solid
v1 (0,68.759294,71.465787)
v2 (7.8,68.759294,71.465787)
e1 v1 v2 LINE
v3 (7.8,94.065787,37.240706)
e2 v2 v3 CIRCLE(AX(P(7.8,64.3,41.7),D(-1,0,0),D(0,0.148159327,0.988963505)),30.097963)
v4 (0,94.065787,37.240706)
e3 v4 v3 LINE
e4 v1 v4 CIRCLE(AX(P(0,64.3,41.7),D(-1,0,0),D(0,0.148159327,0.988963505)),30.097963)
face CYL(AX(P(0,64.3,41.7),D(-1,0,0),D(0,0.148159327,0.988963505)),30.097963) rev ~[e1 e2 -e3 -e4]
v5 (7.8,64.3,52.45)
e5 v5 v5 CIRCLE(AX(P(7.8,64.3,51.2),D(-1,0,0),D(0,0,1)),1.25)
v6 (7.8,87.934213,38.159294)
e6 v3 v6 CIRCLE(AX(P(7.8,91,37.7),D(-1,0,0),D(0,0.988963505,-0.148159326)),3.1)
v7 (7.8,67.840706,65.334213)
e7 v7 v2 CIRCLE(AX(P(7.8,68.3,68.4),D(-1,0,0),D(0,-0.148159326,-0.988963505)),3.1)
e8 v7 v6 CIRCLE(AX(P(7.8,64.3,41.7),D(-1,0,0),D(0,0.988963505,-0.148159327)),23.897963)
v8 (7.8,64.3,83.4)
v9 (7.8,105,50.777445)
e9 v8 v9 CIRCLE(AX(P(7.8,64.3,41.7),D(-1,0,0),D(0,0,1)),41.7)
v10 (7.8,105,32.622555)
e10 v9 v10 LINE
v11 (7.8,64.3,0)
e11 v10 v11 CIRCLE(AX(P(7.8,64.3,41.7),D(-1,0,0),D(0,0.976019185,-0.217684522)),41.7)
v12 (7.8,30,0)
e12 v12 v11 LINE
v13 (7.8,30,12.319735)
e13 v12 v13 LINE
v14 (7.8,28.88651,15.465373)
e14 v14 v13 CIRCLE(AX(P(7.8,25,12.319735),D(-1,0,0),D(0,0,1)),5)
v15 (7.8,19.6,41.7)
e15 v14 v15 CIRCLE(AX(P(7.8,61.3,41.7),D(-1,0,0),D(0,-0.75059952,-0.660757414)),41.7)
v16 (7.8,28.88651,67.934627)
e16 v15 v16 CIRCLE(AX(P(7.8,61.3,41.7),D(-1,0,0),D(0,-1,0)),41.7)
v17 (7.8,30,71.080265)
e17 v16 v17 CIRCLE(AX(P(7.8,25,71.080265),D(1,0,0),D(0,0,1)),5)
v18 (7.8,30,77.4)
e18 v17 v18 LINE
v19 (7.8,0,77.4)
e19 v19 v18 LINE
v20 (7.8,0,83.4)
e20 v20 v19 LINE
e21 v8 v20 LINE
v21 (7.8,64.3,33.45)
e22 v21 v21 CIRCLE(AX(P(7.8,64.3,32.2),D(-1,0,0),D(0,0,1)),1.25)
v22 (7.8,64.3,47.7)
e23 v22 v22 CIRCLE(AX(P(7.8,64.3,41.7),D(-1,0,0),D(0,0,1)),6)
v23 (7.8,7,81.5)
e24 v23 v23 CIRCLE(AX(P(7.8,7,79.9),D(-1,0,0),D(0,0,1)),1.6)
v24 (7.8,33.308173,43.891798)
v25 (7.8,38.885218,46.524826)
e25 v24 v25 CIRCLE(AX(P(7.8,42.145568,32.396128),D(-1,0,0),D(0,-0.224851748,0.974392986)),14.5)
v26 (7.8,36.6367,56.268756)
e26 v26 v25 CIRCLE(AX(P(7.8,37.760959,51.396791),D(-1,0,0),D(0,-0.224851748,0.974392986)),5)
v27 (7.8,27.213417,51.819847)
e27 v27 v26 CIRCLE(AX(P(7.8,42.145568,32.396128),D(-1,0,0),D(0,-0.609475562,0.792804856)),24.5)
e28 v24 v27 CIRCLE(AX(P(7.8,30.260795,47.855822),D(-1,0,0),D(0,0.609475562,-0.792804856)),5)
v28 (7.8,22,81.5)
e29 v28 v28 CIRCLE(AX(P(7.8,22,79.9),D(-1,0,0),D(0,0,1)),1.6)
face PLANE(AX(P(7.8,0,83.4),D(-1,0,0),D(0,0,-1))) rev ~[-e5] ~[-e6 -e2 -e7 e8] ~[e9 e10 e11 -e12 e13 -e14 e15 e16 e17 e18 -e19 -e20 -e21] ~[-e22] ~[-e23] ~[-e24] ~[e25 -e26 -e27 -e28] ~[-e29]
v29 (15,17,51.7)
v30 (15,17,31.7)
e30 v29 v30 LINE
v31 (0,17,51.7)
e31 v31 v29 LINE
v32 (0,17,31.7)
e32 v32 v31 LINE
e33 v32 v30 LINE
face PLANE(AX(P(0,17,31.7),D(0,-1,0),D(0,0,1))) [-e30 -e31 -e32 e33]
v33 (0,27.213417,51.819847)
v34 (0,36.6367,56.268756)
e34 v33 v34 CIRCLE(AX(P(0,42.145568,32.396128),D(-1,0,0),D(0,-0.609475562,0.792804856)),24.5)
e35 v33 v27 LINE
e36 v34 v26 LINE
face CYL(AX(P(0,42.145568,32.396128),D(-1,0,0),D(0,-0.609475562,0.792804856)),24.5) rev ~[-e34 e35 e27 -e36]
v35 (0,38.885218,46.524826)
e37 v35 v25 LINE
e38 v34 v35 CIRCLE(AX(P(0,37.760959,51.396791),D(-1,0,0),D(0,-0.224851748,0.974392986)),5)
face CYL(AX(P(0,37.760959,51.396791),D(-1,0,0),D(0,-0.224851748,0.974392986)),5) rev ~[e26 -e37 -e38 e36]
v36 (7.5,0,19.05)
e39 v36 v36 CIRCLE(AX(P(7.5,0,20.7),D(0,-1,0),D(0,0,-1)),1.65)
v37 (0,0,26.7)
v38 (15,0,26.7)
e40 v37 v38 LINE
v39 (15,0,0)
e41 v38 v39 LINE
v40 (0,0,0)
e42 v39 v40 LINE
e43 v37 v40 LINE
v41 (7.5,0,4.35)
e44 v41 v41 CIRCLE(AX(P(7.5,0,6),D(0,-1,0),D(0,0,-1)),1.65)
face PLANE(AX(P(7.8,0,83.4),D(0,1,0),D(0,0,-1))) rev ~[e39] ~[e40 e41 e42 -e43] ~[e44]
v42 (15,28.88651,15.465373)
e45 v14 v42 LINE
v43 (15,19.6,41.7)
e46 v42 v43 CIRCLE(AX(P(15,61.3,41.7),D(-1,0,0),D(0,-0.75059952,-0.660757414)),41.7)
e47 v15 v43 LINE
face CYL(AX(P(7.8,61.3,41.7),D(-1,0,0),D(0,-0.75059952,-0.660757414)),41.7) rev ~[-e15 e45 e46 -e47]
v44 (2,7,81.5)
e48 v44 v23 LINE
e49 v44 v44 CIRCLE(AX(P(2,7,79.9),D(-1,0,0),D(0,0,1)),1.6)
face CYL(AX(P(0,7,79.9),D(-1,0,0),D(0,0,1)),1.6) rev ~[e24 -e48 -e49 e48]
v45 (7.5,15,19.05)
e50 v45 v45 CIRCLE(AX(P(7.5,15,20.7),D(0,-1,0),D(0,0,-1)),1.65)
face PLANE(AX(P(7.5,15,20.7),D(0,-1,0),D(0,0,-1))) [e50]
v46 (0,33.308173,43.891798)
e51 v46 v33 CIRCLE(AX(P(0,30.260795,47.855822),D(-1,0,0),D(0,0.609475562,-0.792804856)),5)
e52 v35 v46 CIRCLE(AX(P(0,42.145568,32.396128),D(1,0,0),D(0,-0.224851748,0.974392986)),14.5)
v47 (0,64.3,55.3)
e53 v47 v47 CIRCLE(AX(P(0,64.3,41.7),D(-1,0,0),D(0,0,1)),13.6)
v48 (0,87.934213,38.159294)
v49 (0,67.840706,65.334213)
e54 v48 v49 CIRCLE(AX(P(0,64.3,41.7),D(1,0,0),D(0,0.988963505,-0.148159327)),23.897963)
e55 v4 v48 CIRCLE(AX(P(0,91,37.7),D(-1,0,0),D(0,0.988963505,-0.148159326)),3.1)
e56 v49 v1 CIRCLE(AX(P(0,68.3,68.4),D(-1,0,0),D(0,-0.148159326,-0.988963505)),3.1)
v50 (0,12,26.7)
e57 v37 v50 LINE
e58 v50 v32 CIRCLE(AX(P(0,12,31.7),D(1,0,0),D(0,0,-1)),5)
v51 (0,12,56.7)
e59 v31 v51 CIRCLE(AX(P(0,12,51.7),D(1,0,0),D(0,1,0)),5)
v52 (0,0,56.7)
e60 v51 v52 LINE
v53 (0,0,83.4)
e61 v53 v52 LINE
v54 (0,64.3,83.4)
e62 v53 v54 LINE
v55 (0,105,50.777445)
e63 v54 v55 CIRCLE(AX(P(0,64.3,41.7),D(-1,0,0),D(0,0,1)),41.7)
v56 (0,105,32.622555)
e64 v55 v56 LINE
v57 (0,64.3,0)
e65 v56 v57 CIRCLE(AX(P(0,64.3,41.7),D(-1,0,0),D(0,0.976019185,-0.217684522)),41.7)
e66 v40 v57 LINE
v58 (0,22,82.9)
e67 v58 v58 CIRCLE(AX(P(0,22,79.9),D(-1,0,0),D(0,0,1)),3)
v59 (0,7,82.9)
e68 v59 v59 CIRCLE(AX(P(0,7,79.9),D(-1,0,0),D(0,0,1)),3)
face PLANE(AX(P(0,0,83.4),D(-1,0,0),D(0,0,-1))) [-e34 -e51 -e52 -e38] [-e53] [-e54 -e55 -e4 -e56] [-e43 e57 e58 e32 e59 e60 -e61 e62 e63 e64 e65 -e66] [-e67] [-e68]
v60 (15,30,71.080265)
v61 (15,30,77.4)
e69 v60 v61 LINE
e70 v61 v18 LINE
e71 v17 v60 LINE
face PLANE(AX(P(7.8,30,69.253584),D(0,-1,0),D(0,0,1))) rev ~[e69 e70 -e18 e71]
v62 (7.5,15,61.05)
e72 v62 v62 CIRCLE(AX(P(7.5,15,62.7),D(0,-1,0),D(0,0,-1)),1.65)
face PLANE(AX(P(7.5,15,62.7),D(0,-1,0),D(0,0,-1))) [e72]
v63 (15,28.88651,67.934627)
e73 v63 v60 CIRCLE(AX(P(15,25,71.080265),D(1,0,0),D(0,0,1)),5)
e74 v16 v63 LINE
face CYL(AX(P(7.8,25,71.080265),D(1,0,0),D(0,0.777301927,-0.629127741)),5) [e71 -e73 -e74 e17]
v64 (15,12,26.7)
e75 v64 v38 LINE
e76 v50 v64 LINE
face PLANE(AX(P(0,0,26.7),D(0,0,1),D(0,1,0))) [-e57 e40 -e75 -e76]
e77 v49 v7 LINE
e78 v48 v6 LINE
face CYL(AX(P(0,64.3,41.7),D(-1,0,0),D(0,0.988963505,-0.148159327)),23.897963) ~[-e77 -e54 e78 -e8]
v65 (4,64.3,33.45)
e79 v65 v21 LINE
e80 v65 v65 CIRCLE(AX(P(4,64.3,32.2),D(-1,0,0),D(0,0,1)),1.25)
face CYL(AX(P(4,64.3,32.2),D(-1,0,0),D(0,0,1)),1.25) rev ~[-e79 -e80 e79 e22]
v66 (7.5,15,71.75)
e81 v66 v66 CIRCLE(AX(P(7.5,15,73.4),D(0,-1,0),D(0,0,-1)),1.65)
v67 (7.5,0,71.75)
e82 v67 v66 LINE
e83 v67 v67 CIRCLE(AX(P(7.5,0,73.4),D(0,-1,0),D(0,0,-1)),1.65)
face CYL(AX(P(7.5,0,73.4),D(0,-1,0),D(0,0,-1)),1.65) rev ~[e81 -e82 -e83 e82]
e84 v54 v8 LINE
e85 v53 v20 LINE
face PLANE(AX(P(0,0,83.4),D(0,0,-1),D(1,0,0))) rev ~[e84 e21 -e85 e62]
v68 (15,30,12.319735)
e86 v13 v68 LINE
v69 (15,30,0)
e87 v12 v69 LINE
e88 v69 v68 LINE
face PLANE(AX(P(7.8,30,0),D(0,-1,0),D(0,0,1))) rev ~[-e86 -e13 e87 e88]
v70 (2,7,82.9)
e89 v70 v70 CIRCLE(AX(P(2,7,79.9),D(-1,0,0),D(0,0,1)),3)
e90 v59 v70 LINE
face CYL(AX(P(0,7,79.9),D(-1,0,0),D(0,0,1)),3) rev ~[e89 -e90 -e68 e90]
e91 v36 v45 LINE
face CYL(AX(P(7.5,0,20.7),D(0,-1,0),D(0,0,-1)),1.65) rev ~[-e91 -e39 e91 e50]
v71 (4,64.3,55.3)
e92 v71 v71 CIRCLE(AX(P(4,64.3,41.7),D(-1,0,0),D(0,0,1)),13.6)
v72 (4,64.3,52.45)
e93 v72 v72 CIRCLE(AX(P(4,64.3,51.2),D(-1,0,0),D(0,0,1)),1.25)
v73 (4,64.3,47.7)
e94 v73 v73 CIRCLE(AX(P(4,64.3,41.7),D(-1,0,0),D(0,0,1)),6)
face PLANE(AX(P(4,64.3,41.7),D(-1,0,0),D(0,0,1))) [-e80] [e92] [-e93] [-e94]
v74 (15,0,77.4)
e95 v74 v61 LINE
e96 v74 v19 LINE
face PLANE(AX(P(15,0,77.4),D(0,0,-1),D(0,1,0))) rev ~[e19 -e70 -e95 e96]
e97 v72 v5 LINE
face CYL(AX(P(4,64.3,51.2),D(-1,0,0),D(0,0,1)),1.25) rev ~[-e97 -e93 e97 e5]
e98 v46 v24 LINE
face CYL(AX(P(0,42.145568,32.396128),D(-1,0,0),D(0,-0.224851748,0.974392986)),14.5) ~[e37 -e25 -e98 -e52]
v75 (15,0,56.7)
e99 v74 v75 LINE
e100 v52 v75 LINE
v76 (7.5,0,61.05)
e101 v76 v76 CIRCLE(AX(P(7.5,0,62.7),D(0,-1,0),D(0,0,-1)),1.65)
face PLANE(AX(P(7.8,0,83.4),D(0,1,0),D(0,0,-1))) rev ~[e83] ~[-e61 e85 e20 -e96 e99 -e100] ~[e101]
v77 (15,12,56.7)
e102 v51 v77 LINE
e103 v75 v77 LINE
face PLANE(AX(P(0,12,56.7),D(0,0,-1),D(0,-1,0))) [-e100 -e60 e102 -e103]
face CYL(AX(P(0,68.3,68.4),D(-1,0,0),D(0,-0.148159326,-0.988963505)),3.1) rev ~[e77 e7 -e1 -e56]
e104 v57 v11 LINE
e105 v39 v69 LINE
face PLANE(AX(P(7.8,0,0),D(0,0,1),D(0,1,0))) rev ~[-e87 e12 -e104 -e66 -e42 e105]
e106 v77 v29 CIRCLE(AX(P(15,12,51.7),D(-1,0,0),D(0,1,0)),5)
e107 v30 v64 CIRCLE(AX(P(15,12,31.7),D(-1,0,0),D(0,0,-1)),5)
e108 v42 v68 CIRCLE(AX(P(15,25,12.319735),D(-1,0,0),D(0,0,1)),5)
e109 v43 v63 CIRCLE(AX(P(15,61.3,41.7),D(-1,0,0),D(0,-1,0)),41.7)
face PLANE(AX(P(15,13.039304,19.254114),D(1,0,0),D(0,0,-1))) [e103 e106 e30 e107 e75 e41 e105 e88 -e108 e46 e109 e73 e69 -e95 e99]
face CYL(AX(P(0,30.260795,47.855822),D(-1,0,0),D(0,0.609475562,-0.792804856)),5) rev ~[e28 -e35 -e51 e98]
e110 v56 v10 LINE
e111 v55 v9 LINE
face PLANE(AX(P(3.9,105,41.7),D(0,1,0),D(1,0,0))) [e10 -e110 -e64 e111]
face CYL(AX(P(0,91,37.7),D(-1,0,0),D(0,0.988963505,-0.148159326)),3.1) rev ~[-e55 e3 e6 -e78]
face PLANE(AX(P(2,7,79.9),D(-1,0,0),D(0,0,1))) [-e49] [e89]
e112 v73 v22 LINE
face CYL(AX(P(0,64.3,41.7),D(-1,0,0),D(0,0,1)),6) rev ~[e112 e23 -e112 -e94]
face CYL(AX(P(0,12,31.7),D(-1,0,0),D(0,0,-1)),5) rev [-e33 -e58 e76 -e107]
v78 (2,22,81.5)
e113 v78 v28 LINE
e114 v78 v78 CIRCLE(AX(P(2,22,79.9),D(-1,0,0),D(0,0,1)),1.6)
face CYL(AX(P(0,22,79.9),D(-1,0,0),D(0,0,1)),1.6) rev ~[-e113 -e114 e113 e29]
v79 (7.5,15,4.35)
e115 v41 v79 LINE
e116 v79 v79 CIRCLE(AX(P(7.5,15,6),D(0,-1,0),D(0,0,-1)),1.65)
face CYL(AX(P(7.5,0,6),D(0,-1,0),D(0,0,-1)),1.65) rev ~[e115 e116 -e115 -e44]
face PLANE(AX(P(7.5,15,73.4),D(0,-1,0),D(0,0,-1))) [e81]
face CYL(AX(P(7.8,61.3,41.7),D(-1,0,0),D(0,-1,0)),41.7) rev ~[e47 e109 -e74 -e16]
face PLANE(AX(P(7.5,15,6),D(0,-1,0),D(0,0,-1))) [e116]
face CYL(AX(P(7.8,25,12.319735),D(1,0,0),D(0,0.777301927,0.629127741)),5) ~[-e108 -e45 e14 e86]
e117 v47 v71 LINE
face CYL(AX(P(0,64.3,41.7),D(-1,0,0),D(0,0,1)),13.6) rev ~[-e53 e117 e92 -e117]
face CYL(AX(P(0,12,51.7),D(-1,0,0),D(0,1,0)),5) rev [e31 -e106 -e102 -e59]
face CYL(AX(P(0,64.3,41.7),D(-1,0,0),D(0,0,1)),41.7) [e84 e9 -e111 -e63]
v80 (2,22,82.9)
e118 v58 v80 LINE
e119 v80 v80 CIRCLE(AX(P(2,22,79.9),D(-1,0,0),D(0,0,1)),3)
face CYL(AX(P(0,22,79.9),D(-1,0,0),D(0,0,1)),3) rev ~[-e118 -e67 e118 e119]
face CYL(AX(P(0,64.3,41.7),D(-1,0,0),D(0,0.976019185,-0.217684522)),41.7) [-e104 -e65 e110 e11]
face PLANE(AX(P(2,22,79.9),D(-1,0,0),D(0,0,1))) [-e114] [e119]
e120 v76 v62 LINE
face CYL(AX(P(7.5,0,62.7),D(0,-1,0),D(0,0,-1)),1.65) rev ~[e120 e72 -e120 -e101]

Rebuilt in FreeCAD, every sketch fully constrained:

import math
import FreeCAD as App
import Part
import Sketcher
from FreeCAD import Vector


def edges_at(feature, points):
    """Names of the edges that pass closest to the given points."""
    edges = feature.Shape.Edges
    near = lambda p: min(range(len(edges)), key=lambda i: edges[i].distToShape(Part.Vertex(*p))[0])
    return sorted({f"Edge{near(p) + 1}" for p in points})

doc = App.newDocument("Part")
params = doc.addObject("Spreadsheet::Sheet", "Params")
for row, (alias, value) in enumerate([
    ("sketch1_width", "7.8 mm"),
    ("sketch1_height", "83.4 mm"),
    ("pad1_length", "105 mm"),
    ("sketch2_radius", "41.7 mm"),
    ("sketch2_width", "40.7 mm"),
    ("sketch3_diameter", "12 mm"),
    ("sketch4_diameter", "27.2 mm"),
    ("pocket3_length", "4 mm"),
    ("sketch5_diameter", "2.5 mm"),
    ("pocket4_length", "4 mm"),
    ("sketch6_radius", "41.7 mm"),
    ("sketch6_width", "30 mm"),
    ("sketch6_height", "83.4 mm"),
    ("pad2_length", "7.2 mm"),
    ("sketch7_width", "30 mm"),
    ("sketch7_height", "6 mm"),
    ("pocket5_length", "7.2 mm"),
    ("sketch8_radius", "5 mm"),
    ("sketch8_width", "12 mm"),
    ("sketch8_height", "20 mm"),
    ("sketch9_diameter", "3.3 mm"),
    ("pocket7_length", "15 mm"),
    ("sketch10_radius", "3.1 mm"),
    ("fillet_radius", "5 mm"),
    ("sketch11_radius", "5 mm"),
    ("sketch11_radius2", "24.5 mm"),
    ("sketch12_diameter", "3.2 mm"),
    ("sketch13_diameter", "6 mm"),
    ("pocket11_length", "2 mm"),
], start=1):
    params.set(f"A{row}", alias)
    params.set(f"B{row}", "=" + value)
    params.setAlias(f"B{row}", alias)

body = doc.addObject("PartDesign::Body", "Body")

# Sketch on XZ plane
sketch1 = doc.addObject("Sketcher::SketchObject", "Sketch")
body.addObject(sketch1)
sketch1.AttachmentSupport = (doc.XZ_Plane, [""])
sketch1.MapMode = "FlatFace"
sketch1.addGeometry(Part.LineSegment(Vector(0, 0, 0), Vector(0, 83.4, 0)), False)
sketch1.addGeometry(Part.LineSegment(Vector(0, 83.4, 0), Vector(7.8, 83.4, 0)), False)
sketch1.addGeometry(Part.LineSegment(Vector(7.8, 83.4, 0), Vector(7.8, 0, 0)), False)
sketch1.addGeometry(Part.LineSegment(Vector(7.8, 0, 0), Vector(0, 0, 0)), False)
sketch1.addConstraint(Sketcher.Constraint("Coincident", 0, 2, 1, 1))
sketch1.addConstraint(Sketcher.Constraint("Coincident", 1, 2, 2, 1))
sketch1.addConstraint(Sketcher.Constraint("Coincident", 2, 2, 3, 1))
sketch1.addConstraint(Sketcher.Constraint("Coincident", 3, 2, 0, 1))
sketch1.addConstraint(Sketcher.Constraint("Vertical", 0))
sketch1.addConstraint(Sketcher.Constraint("Horizontal", 1))
sketch1.addConstraint(Sketcher.Constraint("Vertical", 2))
sketch1.addConstraint(Sketcher.Constraint("Horizontal", 3))
sketch1.addConstraint(Sketcher.Constraint("Coincident", 3, 2, -1, 1))
sketch1.addConstraint(Sketcher.Constraint("DistanceX", 1, 1, 1, 2, 7.8))
sketch1.addConstraint(Sketcher.Constraint("DistanceY", 0, 1, 0, 2, 83.4))
sketch1.setExpression("Constraints[9]", "Params.sketch1_width")
sketch1.setExpression("Constraints[10]", "Params.sketch1_height")
pad1 = doc.addObject("PartDesign::Pad", "Pad")
body.addObject(pad1)
pad1.Profile = sketch1
pad1.setExpression("Length", "Params.pad1_length")
pad1.Reversed = True

# Sketch on YZ plane
sketch2 = doc.addObject("Sketcher::SketchObject", "Sketch001")
body.addObject(sketch2)
sketch2.AttachmentSupport = (doc.YZ_Plane, [""])
sketch2.MapMode = "FlatFace"
sketch2.addGeometry(Part.LineSegment(Vector(105, 0, 0), Vector(64.3, 0, 0)), False)
sketch2.addGeometry(Part.ArcOfCircle(Part.Circle(Vector(64.3, 41.7, 0), Vector(0, 0, 1), 41.7), math.radians(-90), math.radians(-12.57307)), False)
sketch2.addGeometry(Part.LineSegment(Vector(105, 32.622555, 0), Vector(105, 0, 0)), False)
sketch2.addGeometry(Part.LineSegment(Vector(64.3, 83.4, 0), Vector(105, 83.4, 0)), False)
sketch2.addGeometry(Part.LineSegment(Vector(105, 83.4, 0), Vector(105, 50.777445, 0)), False)
sketch2.addGeometry(Part.ArcOfCircle(Part.Circle(Vector(64.3, 41.7, 0), Vector(0, 0, 1), 41.7), math.radians(12.57307), math.radians(90)), False)
sketch2.addConstraint(Sketcher.Constraint("Tangent", 0, 2, 1, 1))
sketch2.addConstraint(Sketcher.Constraint("Coincident", 1, 2, 2, 1))
sketch2.addConstraint(Sketcher.Constraint("Coincident", 2, 2, 0, 1))
sketch2.addConstraint(Sketcher.Constraint("Coincident", 3, 2, 4, 1))
sketch2.addConstraint(Sketcher.Constraint("Coincident", 4, 2, 5, 1))
sketch2.addConstraint(Sketcher.Constraint("Tangent", 5, 2, 3, 1))
sketch2.addConstraint(Sketcher.Constraint("Horizontal", 0))
sketch2.addConstraint(Sketcher.Constraint("Vertical", 2))
sketch2.addConstraint(Sketcher.Constraint("Horizontal", 3))
sketch2.addConstraint(Sketcher.Constraint("Vertical", 4))
sketch2.addConstraint(Sketcher.Constraint("Coincident", 5, 3, 1, 3))
sketch2.addConstraint(Sketcher.Constraint("Equal", 1, 5))
sketch2.addConstraint(Sketcher.Constraint("PointOnObject", 0, 2, -1))
sketch2.addConstraint(Sketcher.Constraint("Vertical", 2, 2, 3, 2))
sketch2.addConstraint(Sketcher.Constraint("Radius", 1, 41.7))
sketch2.addConstraint(Sketcher.Constraint("DistanceX", 0, 2, 0, 1, 40.7))
sketch2.addConstraint(Sketcher.Constraint("DistanceX", -1, 1, 1, 2, 105.0))
sketch2.setExpression("Constraints[14]", "Params.sketch2_radius")
sketch2.setExpression("Constraints[15]", "Params.sketch2_width")
pocket1 = doc.addObject("PartDesign::Pocket", "Pocket")
body.addObject(pocket1)
pocket1.Profile = sketch2
pocket1.Type = "ThroughAll"
pocket1.Reversed = True

# Sketch on YZ plane
sketch3 = doc.addObject("Sketcher::SketchObject", "Sketch002")
body.addObject(sketch3)
sketch3.AttachmentSupport = (doc.YZ_Plane, [""])
sketch3.MapMode = "FlatFace"
sketch3.addGeometry(Part.Circle(Vector(64.3, 41.7, 0), Vector(0, 0, 1), 6), False)
sketch3.addConstraint(Sketcher.Constraint("Diameter", 0, 12.0))
sketch3.addConstraint(Sketcher.Constraint("DistanceX", -1, 1, 0, 3, 64.3))
sketch3.addConstraint(Sketcher.Constraint("DistanceY", -1, 1, 0, 3, 41.7))
sketch3.setExpression("Constraints[0]", "Params.sketch3_diameter")
pocket2 = doc.addObject("PartDesign::Pocket", "Pocket001")
body.addObject(pocket2)
pocket2.Profile = sketch3
pocket2.Type = "ThroughAll"
pocket2.Reversed = True

# Sketch on YZ plane
sketch4 = doc.addObject("Sketcher::SketchObject", "Sketch003")
body.addObject(sketch4)
sketch4.AttachmentSupport = (doc.YZ_Plane, [""])
sketch4.MapMode = "FlatFace"
sketch4.addGeometry(Part.Circle(Vector(64.3, 41.7, 0), Vector(0, 0, 1), 13.6), False)
sketch4.addConstraint(Sketcher.Constraint("Diameter", 0, 27.2))
sketch4.addConstraint(Sketcher.Constraint("DistanceX", -1, 1, 0, 3, 64.3))
sketch4.addConstraint(Sketcher.Constraint("DistanceY", -1, 1, 0, 3, 41.7))
sketch4.setExpression("Constraints[0]", "Params.sketch4_diameter")
pocket3 = doc.addObject("PartDesign::Pocket", "Pocket002")
body.addObject(pocket3)
pocket3.Profile = sketch4
pocket3.setExpression("Length", "Params.pocket3_length")
pocket3.Reversed = True

# Sketch on YZ plane
sketch5 = doc.addObject("Sketcher::SketchObject", "Sketch004")
body.addObject(sketch5)
sketch5.AttachmentSupport = (doc.YZ_Plane, [""])
sketch5.MapMode = "FlatFace"
sketch5.AttachmentOffset = App.Placement(Vector(0, 0, 4), App.Rotation())
sketch5.addGeometry(Part.Circle(Vector(64.3, 32.2, 0), Vector(0, 0, 1), 1.25), False)
sketch5.addGeometry(Part.Circle(Vector(64.3, 51.2, 0), Vector(0, 0, 1), 1.25), False)
sketch5.addConstraint(Sketcher.Constraint("Equal", 0, 1))
sketch5.addConstraint(Sketcher.Constraint("Vertical", 0, 3, 1, 3))
sketch5.addConstraint(Sketcher.Constraint("Diameter", 0, 2.5))
sketch5.addConstraint(Sketcher.Constraint("DistanceY", 0, 3, 1, 3, 19.0))
sketch5.addConstraint(Sketcher.Constraint("DistanceX", -1, 1, 0, 3, 64.3))
sketch5.addConstraint(Sketcher.Constraint("DistanceY", -1, 1, 0, 3, 32.2))
sketch5.setExpression("Constraints[2]", "Params.sketch5_diameter")
pocket4 = doc.addObject("PartDesign::Pocket", "Pocket003")
body.addObject(pocket4)
pocket4.Profile = sketch5
pocket4.setExpression("Length", "Params.pocket4_length")
pocket4.Reversed = True

# Sketch on YZ plane
sketch6 = doc.addObject("Sketcher::SketchObject", "Sketch005")
body.addObject(sketch6)
sketch6.AttachmentSupport = (doc.YZ_Plane, [""])
sketch6.MapMode = "FlatFace"
sketch6.AttachmentOffset = App.Placement(Vector(0, 0, 7.8), App.Rotation())
sketch6.addGeometry(Part.ArcOfCircle(Part.Circle(Vector(61.3, 41.7, 0), Vector(0, 0, 1), 41.7), math.radians(-180), math.radians(-138.642337)), False)
sketch6.addGeometry(Part.ArcOfCircle(Part.Circle(Vector(61.3, 41.7, 0), Vector(0, 0, 1), 41.7), math.radians(138.642337), math.radians(180)), False)
sketch6.addGeometry(Part.LineSegment(Vector(30, 69.253584, 0), Vector(30, 83.4, 0)), False)
sketch6.addGeometry(Part.LineSegment(Vector(30, 83.4, 0), Vector(0, 83.4, 0)), False)
sketch6.addGeometry(Part.LineSegment(Vector(0, 83.4, 0), Vector(0, 0, 0)), False)
sketch6.addGeometry(Part.LineSegment(Vector(0, 0, 0), Vector(30, 0, 0)), False)
sketch6.addGeometry(Part.LineSegment(Vector(30, 0, 0), Vector(30, 14.146416, 0)), False)
sketch6.addConstraint(Sketcher.Constraint("Tangent", 0, 1, 1, 2))
sketch6.addConstraint(Sketcher.Constraint("Coincident", 1, 1, 2, 1))
sketch6.addConstraint(Sketcher.Constraint("Coincident", 2, 2, 3, 1))
sketch6.addConstraint(Sketcher.Constraint("Coincident", 3, 2, 4, 1))
sketch6.addConstraint(Sketcher.Constraint("Coincident", 4, 2, 5, 1))
sketch6.addConstraint(Sketcher.Constraint("Coincident", 5, 2, 6, 1))
sketch6.addConstraint(Sketcher.Constraint("Coincident", 6, 2, 0, 2))
sketch6.addConstraint(Sketcher.Constraint("Vertical", 2))
sketch6.addConstraint(Sketcher.Constraint("Horizontal", 3))
sketch6.addConstraint(Sketcher.Constraint("Vertical", 4))
sketch6.addConstraint(Sketcher.Constraint("Horizontal", 5))
sketch6.addConstraint(Sketcher.Constraint("Vertical", 6))
sketch6.addConstraint(Sketcher.Constraint("Coincident", 4, 2, -1, 1))
sketch6.addConstraint(Sketcher.Constraint("Equal", 0, 1))
sketch6.addConstraint(Sketcher.Constraint("Horizontal", 1, 3, 0, 1))
sketch6.addConstraint(Sketcher.Constraint("Vertical", 2, 2, 5, 2))
sketch6.addConstraint(Sketcher.Constraint("Equal", 2, 6))
sketch6.addConstraint(Sketcher.Constraint("Radius", 0, 41.7))
sketch6.addConstraint(Sketcher.Constraint("DistanceX", 3, 2, 3, 1, 30.0))
sketch6.addConstraint(Sketcher.Constraint("DistanceY", 4, 2, 4, 1, 83.4))
sketch6.addConstraint(Sketcher.Constraint("DistanceX", -1, 1, 0, 3, 61.3))
sketch6.setExpression("Constraints[17]", "Params.sketch6_radius")
sketch6.setExpression("Constraints[18]", "Params.sketch6_width")
sketch6.setExpression("Constraints[19]", "Params.sketch6_height")
pad2 = doc.addObject("PartDesign::Pad", "Pad001")
body.addObject(pad2)
pad2.Profile = sketch6
pad2.setExpression("Length", "Params.pad2_length")

# Sketch on YZ plane
sketch7 = doc.addObject("Sketcher::SketchObject", "Sketch006")
body.addObject(sketch7)
sketch7.AttachmentSupport = (doc.YZ_Plane, [""])
sketch7.MapMode = "FlatFace"
sketch7.AttachmentOffset = App.Placement(Vector(0, 0, 15), App.Rotation())
sketch7.addGeometry(Part.LineSegment(Vector(30, 83.4, 0), Vector(0, 83.4, 0)), False)
sketch7.addGeometry(Part.LineSegment(Vector(0, 83.4, 0), Vector(0, 77.4, 0)), False)
sketch7.addGeometry(Part.LineSegment(Vector(0, 77.4, 0), Vector(30, 77.4, 0)), False)
sketch7.addGeometry(Part.LineSegment(Vector(30, 77.4, 0), Vector(30, 83.4, 0)), False)
sketch7.addConstraint(Sketcher.Constraint("Coincident", 0, 2, 1, 1))
sketch7.addConstraint(Sketcher.Constraint("Coincident", 1, 2, 2, 1))
sketch7.addConstraint(Sketcher.Constraint("Coincident", 2, 2, 3, 1))
sketch7.addConstraint(Sketcher.Constraint("Coincident", 3, 2, 0, 1))
sketch7.addConstraint(Sketcher.Constraint("Horizontal", 0))
sketch7.addConstraint(Sketcher.Constraint("Vertical", 1))
sketch7.addConstraint(Sketcher.Constraint("Horizontal", 2))
sketch7.addConstraint(Sketcher.Constraint("Vertical", 3))
sketch7.addConstraint(Sketcher.Constraint("PointOnObject", 0, 2, -2))
sketch7.addConstraint(Sketcher.Constraint("DistanceX", 0, 2, 0, 1, 30.0))
sketch7.addConstraint(Sketcher.Constraint("DistanceY", 1, 2, 1, 1, 6.0))
sketch7.addConstraint(Sketcher.Constraint("DistanceY", -1, 1, 0, 2, 83.4))
sketch7.setExpression("Constraints[9]", "Params.sketch7_width")
sketch7.setExpression("Constraints[10]", "Params.sketch7_height")
pocket5 = doc.addObject("PartDesign::Pocket", "Pocket004")
body.addObject(pocket5)
pocket5.Profile = sketch7
pocket5.setExpression("Length", "Params.pocket5_length")

# Sketch on YZ plane
sketch8 = doc.addObject("Sketcher::SketchObject", "Sketch007")
body.addObject(sketch8)
sketch8.AttachmentSupport = (doc.YZ_Plane, [""])
sketch8.MapMode = "FlatFace"
sketch8.addGeometry(Part.LineSegment(Vector(17, 51.7, 0), Vector(17, 31.7, 0)), False)
sketch8.addGeometry(Part.ArcOfCircle(Part.Circle(Vector(12, 31.7, 0), Vector(0, 0, 1), 5), math.radians(-90), math.radians(0)), False)
sketch8.addGeometry(Part.LineSegment(Vector(12, 26.7, 0), Vector(0, 26.7, 0)), False)
sketch8.addGeometry(Part.LineSegment(Vector(0, 26.7, 0), Vector(0, 56.7, 0)), False)
sketch8.addGeometry(Part.LineSegment(Vector(0, 56.7, 0), Vector(12, 56.7, 0)), False)
sketch8.addGeometry(Part.ArcOfCircle(Part.Circle(Vector(12, 51.7, 0), Vector(0, 0, 1), 5), math.radians(0), math.radians(90)), False)
sketch8.addConstraint(Sketcher.Constraint("Tangent", 0, 2, 1, 2))
sketch8.addConstraint(Sketcher.Constraint("Tangent", 1, 1, 2, 1))
sketch8.addConstraint(Sketcher.Constraint("Coincident", 2, 2, 3, 1))
sketch8.addConstraint(Sketcher.Constraint("Coincident", 3, 2, 4, 1))
sketch8.addConstraint(Sketcher.Constraint("Tangent", 4, 2, 5, 2))
sketch8.addConstraint(Sketcher.Constraint("Tangent", 5, 1, 0, 1))
sketch8.addConstraint(Sketcher.Constraint("Vertical", 0))
sketch8.addConstraint(Sketcher.Constraint("Horizontal", 2))
sketch8.addConstraint(Sketcher.Constraint("Vertical", 3))
sketch8.addConstraint(Sketcher.Constraint("Horizontal", 4))
sketch8.addConstraint(Sketcher.Constraint("Equal", 1, 5))
sketch8.addConstraint(Sketcher.Constraint("PointOnObject", 2, 2, -2))
sketch8.addConstraint(Sketcher.Constraint("Radius", 1, 5.0))
sketch8.addConstraint(Sketcher.Constraint("DistanceX", 2, 2, 2, 1, 12.0))
sketch8.addConstraint(Sketcher.Constraint("DistanceY", 0, 2, 0, 1, 20.0))
sketch8.addConstraint(Sketcher.Constraint("DistanceY", -1, 1, 1, 3, 31.7))
sketch8.setExpression("Constraints[12]", "Params.sketch8_radius")
sketch8.setExpression("Constraints[13]", "Params.sketch8_width")
sketch8.setExpression("Constraints[14]", "Params.sketch8_height")
pocket6 = doc.addObject("PartDesign::Pocket", "Pocket005")
body.addObject(pocket6)
pocket6.Profile = sketch8
pocket6.Type = "ThroughAll"
pocket6.Reversed = True

# Sketch on XZ plane
sketch9 = doc.addObject("Sketcher::SketchObject", "Sketch008")
body.addObject(sketch9)
sketch9.AttachmentSupport = (doc.XZ_Plane, [""])
sketch9.MapMode = "FlatFace"
sketch9.addGeometry(Part.Circle(Vector(7.5, 73.4, 0), Vector(0, 0, 1), 1.65), False)
sketch9.addGeometry(Part.Circle(Vector(7.5, 62.7, 0), Vector(0, 0, 1), 1.65), False)
sketch9.addGeometry(Part.Circle(Vector(7.5, 20.7, 0), Vector(0, 0, 1), 1.65), False)
sketch9.addGeometry(Part.Circle(Vector(7.5, 6, 0), Vector(0, 0, 1), 1.65), False)
sketch9.addConstraint(Sketcher.Constraint("Equal", 0, 1))
sketch9.addConstraint(Sketcher.Constraint("Equal", 1, 2))
sketch9.addConstraint(Sketcher.Constraint("Equal", 2, 3))
sketch9.addConstraint(Sketcher.Constraint("Vertical", 0, 3, 1, 3))
sketch9.addConstraint(Sketcher.Constraint("Vertical", 1, 3, 2, 3))
sketch9.addConstraint(Sketcher.Constraint("Vertical", 2, 3, 3, 3))
sketch9.addConstraint(Sketcher.Constraint("Diameter", 0, 3.3))
sketch9.addConstraint(Sketcher.Constraint("DistanceY", -1, 1, 3, 3, 6.0))
sketch9.addConstraint(Sketcher.Constraint("DistanceY", 2, 3, 1, 3, 42.0))
sketch9.addConstraint(Sketcher.Constraint("DistanceX", -1, 1, 0, 3, 7.5))
sketch9.addConstraint(Sketcher.Constraint("DistanceY", -1, 1, 0, 3, 73.4))
sketch9.addConstraint(Sketcher.Constraint("DistanceY", -1, 1, 1, 3, 62.7))
sketch9.setExpression("Constraints[6]", "Params.sketch9_diameter")
pocket7 = doc.addObject("PartDesign::Pocket", "Pocket006")
body.addObject(pocket7)
pocket7.Profile = sketch9
pocket7.setExpression("Length", "Params.pocket7_length")

# Sketch on YZ plane
sketch10 = doc.addObject("Sketcher::SketchObject", "Sketch009")
body.addObject(sketch10)
sketch10.AttachmentSupport = (doc.YZ_Plane, [""])
sketch10.MapMode = "FlatFace"
sketch10.addGeometry(Part.ArcOfCircle(Part.Circle(Vector(64.3, 41.7, 0), Vector(0, 0, 1), 30.097963), math.radians(-8.520272), math.radians(81.479728)), False)
sketch10.addGeometry(Part.ArcOfCircle(Part.Circle(Vector(91, 37.7, 0), Vector(0, 0, 1), 3.1), math.radians(171.479728), math.radians(351.479728)), False)
sketch10.addGeometry(Part.ArcOfCircle(Part.Circle(Vector(64.3, 41.7, 0), Vector(0, 0, 1), 23.897963), math.radians(-8.520272), math.radians(81.479728)), False)
sketch10.addGeometry(Part.ArcOfCircle(Part.Circle(Vector(68.3, 68.4, 0), Vector(0, 0, 1), 3.1), math.radians(81.479728), math.radians(261.479728)), False)
sketch10.addConstraint(Sketcher.Constraint("Tangent", 0, 1, 1, 2))
sketch10.addConstraint(Sketcher.Constraint("Tangent", 1, 1, 2, 1))
sketch10.addConstraint(Sketcher.Constraint("Tangent", 2, 2, 3, 2))
sketch10.addConstraint(Sketcher.Constraint("Tangent", 3, 1, 0, 2))
sketch10.addConstraint(Sketcher.Constraint("Coincident", 2, 3, 0, 3))
sketch10.addConstraint(Sketcher.Constraint("Radius", 1, 3.1))
sketch10.addConstraint(Sketcher.Constraint("DistanceX", -1, 1, 1, 3, 91.0))
sketch10.addConstraint(Sketcher.Constraint("DistanceY", 1, 3, 0, 3, 4.0))
sketch10.addConstraint(Sketcher.Constraint("DistanceX", 0, 3, 3, 3, 4.0))
sketch10.addConstraint(Sketcher.Constraint("DistanceX", -1, 1, 0, 3, 64.3))
sketch10.addConstraint(Sketcher.Constraint("DistanceY", -1, 1, 0, 3, 41.7))
sketch10.setExpression("Constraints[5]", "Params.sketch10_radius")
pocket8 = doc.addObject("PartDesign::Pocket", "Pocket007")
body.addObject(pocket8)
pocket8.Profile = sketch10
pocket8.Type = "ThroughAll"
pocket8.Reversed = True
doc.recompute()

fillet = doc.addObject("PartDesign::Fillet", "Fillet")
body.addObject(fillet)
fillet.Base = (pocket8, edges_at(pocket8, [(11.4, 30, 14.146), (11.4, 30, 69.254)]))
fillet.setExpression("Radius", "Params.fillet_radius")

# Sketch on YZ plane
sketch11 = doc.addObject("Sketcher::SketchObject", "Sketch010")
body.addObject(sketch11)
sketch11.AttachmentSupport = (doc.YZ_Plane, [""])
sketch11.MapMode = "FlatFace"
sketch11.addGeometry(Part.ArcOfCircle(Part.Circle(Vector(42.145568, 32.396128, 0), Vector(0, 0, 1), 24.5), math.radians(102.994161), math.radians(127.551592)), False)
sketch11.addGeometry(Part.ArcOfCircle(Part.Circle(Vector(37.760959, 51.396791, 0), Vector(0, 0, 1), 5), math.radians(-77.005839), math.radians(102.994161)), False)
sketch11.addGeometry(Part.ArcOfCircle(Part.Circle(Vector(42.145568, 32.396128, 0), Vector(0, 0, 1), 14.5), math.radians(102.994161), math.radians(127.551592)), False)
sketch11.addGeometry(Part.ArcOfCircle(Part.Circle(Vector(30.260795, 47.855822, 0), Vector(0, 0, 1), 5), math.radians(127.551592), math.radians(307.551592)), False)
sketch11.addConstraint(Sketcher.Constraint("Tangent", 0, 1, 1, 2))
sketch11.addConstraint(Sketcher.Constraint("Tangent", 1, 1, 2, 1))
sketch11.addConstraint(Sketcher.Constraint("Tangent", 2, 2, 3, 2))
sketch11.addConstraint(Sketcher.Constraint("Tangent", 3, 1, 0, 2))
sketch11.addConstraint(Sketcher.Constraint("Coincident", 2, 3, 0, 3))
sketch11.addConstraint(Sketcher.Constraint("Radius", 1, 5.0))
sketch11.addConstraint(Sketcher.Constraint("Radius", 0, 24.5))
sketch11.addConstraint(Sketcher.Constraint("DistanceX", -1, 1, 0, 1, 36.6367))
sketch11.addConstraint(Sketcher.Constraint("DistanceY", -1, 1, 2, 2, 43.891798))
sketch11.addConstraint(Sketcher.Constraint("DistanceY", 0, 3, 1, 1, 14.128698))
sketch11.addConstraint(Sketcher.Constraint("DistanceX", 3, 1, 1, 1, 11.671801))
sketch11.setExpression("Constraints[5]", "Params.sketch11_radius")
sketch11.setExpression("Constraints[6]", "Params.sketch11_radius2")
pocket9 = doc.addObject("PartDesign::Pocket", "Pocket008")
body.addObject(pocket9)
pocket9.Profile = sketch11
pocket9.Type = "ThroughAll"
pocket9.Reversed = True

# Sketch on YZ plane
sketch12 = doc.addObject("Sketcher::SketchObject", "Sketch011")
body.addObject(sketch12)
sketch12.AttachmentSupport = (doc.YZ_Plane, [""])
sketch12.MapMode = "FlatFace"
sketch12.addGeometry(Part.Circle(Vector(7, 79.9, 0), Vector(0, 0, 1), 1.6), False)
sketch12.addGeometry(Part.Circle(Vector(22, 79.9, 0), Vector(0, 0, 1), 1.6), False)
sketch12.addConstraint(Sketcher.Constraint("Equal", 0, 1))
sketch12.addConstraint(Sketcher.Constraint("Horizontal", 0, 3, 1, 3))
sketch12.addConstraint(Sketcher.Constraint("Diameter", 0, 3.2))
sketch12.addConstraint(Sketcher.Constraint("DistanceX", -1, 1, 0, 3, 7.0))
sketch12.addConstraint(Sketcher.Constraint("DistanceX", -1, 1, 1, 3, 22.0))
sketch12.addConstraint(Sketcher.Constraint("DistanceY", -1, 1, 0, 3, 79.9))
sketch12.setExpression("Constraints[2]", "Params.sketch12_diameter")
pocket10 = doc.addObject("PartDesign::Pocket", "Pocket009")
body.addObject(pocket10)
pocket10.Profile = sketch12
pocket10.Type = "ThroughAll"
pocket10.Reversed = True

# Sketch on YZ plane
sketch13 = doc.addObject("Sketcher::SketchObject", "Sketch012")
body.addObject(sketch13)
sketch13.AttachmentSupport = (doc.YZ_Plane, [""])
sketch13.MapMode = "FlatFace"
sketch13.addGeometry(Part.Circle(Vector(7, 79.9, 0), Vector(0, 0, 1), 3), False)
sketch13.addGeometry(Part.Circle(Vector(22, 79.9, 0), Vector(0, 0, 1), 3), False)
sketch13.addConstraint(Sketcher.Constraint("Equal", 0, 1))
sketch13.addConstraint(Sketcher.Constraint("Horizontal", 0, 3, 1, 3))
sketch13.addConstraint(Sketcher.Constraint("Diameter", 0, 6.0))
sketch13.addConstraint(Sketcher.Constraint("DistanceX", -1, 1, 0, 3, 7.0))
sketch13.addConstraint(Sketcher.Constraint("DistanceX", -1, 1, 1, 3, 22.0))
sketch13.addConstraint(Sketcher.Constraint("DistanceY", -1, 1, 0, 3, 79.9))
sketch13.setExpression("Constraints[2]", "Params.sketch13_diameter")
pocket11 = doc.addObject("PartDesign::Pocket", "Pocket010")
body.addObject(pocket11)
pocket11.Profile = sketch13
pocket11.setExpression("Length", "Params.pocket11_length")
pocket11.Reversed = True

doc.recompute()
